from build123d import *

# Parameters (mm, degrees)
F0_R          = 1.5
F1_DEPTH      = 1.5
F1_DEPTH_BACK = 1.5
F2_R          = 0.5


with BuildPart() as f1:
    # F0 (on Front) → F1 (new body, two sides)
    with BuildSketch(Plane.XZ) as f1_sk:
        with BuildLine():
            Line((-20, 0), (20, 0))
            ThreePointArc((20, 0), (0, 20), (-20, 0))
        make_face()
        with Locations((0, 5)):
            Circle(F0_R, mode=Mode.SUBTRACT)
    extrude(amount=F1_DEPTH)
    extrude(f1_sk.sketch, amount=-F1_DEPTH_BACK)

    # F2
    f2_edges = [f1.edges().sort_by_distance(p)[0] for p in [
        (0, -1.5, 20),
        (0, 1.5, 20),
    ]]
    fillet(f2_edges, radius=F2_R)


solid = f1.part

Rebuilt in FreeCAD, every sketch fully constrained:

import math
import FreeCAD as App
import Part
import Sketcher
Q = App.Units.Quantity


def edges_at(feature, points):
    """Names of the edges that pass closest to the given points."""
    edges = feature.Shape.Edges
    near = lambda p: min(range(len(edges)), key=lambda i: edges[i].distToShape(Part.Vertex(*p))[0])
    return sorted({f"Edge{near(p) + 1}" for p in points})

doc = App.newDocument("Part")
body = doc.addObject("PartDesign::Body", "Body")

# Sketch on XZ plane
sketch1 = body.newObject("Sketcher::SketchObject", "Sketch")
sketch1.AttachmentSupport = (doc.getObject("XZ_Plane"), [""])
sketch1.MapMode = "FlatFace"
sketch1.addGeometry([
    Part.LineSegment(App.Vector(-20, 0, 0), App.Vector(20, 0, 0)),
    Part.ArcOfCircle(Part.Circle(App.Vector(0, 0, 0), App.Vector(0, 0, 1), 20), math.radians(0), math.radians(180)),
    Part.Circle(App.Vector(0, 5, 0), App.Vector(0, 0, 1), 1.5),
], False)
sketch1.addConstraint([
    Sketcher.Constraint("Coincident", 0, 1, 1, 2),
    Sketcher.Constraint("Coincident", 1, 1, 0, 2),
    Sketcher.Constraint("Horizontal", 0),
    Sketcher.Constraint("Coincident", 1, 3, -1, 1),
    Sketcher.Constraint("PointOnObject", 2, 3, -2),
    Sketcher.Constraint("PointOnObject", 0, 1, -1),
    Sketcher.Constraint("Diameter", 2, Q("3 mm")),
    Sketcher.Constraint("Radius", 1, Q("20 mm")),
    Sketcher.Constraint("DistanceY", -1, 1, 2, 3, Q("5 mm")),
])
pad1 = body.newObject("PartDesign::Pad", "Pad")
pad1.Profile = sketch1
pad1.Type = "TwoLengths"
pad1.Length = 1.5
pad1.Length2 = 1.5
doc.recompute()

fillet = body.newObject("PartDesign::Fillet", "Fillet")
fillet.Base = (pad1, edges_at(pad1, [(0, -1.5, 20), (0, 1.5, 20)]))
fillet.Radius = 0.5

doc.recompute()
